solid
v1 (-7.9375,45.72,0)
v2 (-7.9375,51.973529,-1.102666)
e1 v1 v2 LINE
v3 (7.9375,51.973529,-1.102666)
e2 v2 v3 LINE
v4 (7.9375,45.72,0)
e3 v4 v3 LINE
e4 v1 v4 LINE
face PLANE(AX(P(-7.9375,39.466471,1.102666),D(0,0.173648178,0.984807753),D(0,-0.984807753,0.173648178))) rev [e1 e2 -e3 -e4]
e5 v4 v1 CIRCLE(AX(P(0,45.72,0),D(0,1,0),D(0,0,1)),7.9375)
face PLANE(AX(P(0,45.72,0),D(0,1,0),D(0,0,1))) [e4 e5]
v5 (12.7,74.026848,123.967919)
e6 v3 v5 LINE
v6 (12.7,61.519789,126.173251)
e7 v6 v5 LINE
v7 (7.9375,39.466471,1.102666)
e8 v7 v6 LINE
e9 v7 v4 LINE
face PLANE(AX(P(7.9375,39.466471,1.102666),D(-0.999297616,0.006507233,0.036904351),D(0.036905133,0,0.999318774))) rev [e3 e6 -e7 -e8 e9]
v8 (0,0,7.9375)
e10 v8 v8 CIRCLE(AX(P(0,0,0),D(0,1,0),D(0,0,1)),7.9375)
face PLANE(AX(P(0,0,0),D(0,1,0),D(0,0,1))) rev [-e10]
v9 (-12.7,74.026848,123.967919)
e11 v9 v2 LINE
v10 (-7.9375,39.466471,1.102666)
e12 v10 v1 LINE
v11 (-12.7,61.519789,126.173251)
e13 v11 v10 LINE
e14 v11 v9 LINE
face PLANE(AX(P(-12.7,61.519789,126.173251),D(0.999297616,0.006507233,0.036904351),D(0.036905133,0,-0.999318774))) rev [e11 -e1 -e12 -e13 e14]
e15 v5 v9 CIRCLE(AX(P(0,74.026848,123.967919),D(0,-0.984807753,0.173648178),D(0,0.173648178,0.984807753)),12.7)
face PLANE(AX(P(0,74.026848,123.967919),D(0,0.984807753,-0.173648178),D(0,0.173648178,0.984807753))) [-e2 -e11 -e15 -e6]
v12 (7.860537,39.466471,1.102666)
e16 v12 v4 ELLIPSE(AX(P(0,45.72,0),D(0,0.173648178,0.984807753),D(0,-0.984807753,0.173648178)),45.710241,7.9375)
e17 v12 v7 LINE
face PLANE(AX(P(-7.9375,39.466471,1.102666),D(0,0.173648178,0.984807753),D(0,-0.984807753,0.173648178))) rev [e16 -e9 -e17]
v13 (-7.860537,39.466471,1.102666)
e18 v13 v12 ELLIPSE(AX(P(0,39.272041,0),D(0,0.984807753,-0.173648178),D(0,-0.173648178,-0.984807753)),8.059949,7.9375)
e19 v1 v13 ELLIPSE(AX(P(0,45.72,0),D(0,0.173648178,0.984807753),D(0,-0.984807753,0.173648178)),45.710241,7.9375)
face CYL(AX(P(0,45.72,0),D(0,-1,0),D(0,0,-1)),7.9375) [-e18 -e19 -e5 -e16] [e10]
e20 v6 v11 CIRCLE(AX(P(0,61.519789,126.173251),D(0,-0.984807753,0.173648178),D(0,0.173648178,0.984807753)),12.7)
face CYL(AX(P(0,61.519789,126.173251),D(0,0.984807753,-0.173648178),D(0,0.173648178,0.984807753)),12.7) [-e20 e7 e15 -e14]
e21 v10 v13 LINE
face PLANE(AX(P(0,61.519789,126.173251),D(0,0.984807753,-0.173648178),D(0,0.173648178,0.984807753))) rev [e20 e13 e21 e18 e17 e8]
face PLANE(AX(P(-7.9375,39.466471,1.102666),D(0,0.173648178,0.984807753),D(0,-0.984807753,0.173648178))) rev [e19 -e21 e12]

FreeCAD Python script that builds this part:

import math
import FreeCAD as App
import Part
import Sketcher

V = App.Vector
Q = App.Units.Quantity

doc = App.newDocument("Part")
params = doc.addObject("Spreadsheet::Sheet", "Params")
for row, (alias, value) in enumerate([
    ("sketch1_diameter", "0.625 in"),
    ("pad1_length", "1.8 in"),
    ("sketch2_radius", "0.5 in"),
    ("sketch2_width", "0.625 in"),
    ("pad2_length", "0.5 in"),
], start=1):
    params.set(f"A{row}", alias)
    params.set(f"B{row}", "=" + value)
    params.setAlias(f"B{row}", alias)

body = doc.addObject("PartDesign::Body", "Body")

# Sketch on XZ plane
sketch1 = doc.addObject("Sketcher::SketchObject", "Sketch")
body.addObject(sketch1)
sketch1.AttachmentSupport = (doc.XZ_Plane, [""])
sketch1.MapMode = "FlatFace"
sketch1.addGeometry(Part.Circle(V(0, 0, 0), V(0, 0, 1), 8), False)
sketch1.addConstraint([
    Sketcher.Constraint("Coincident", 0, 3, -1, 1),
    Sketcher.Constraint("Diameter", 0, Q("0.625 in")),
])
sketch1.setExpression("Constraints[1]", "Params.sketch1_diameter")
pad1 = doc.addObject("PartDesign::Pad", "Pad")
body.addObject(pad1)
pad1.Profile = sketch1
pad1.setExpression("Length", "Params.pad1_length")
pad1.Reversed = True

# Sketch on an angled plane
sketch2 = doc.addObject("Sketcher::SketchObject", "Sketch001")
body.addObject(sketch2)
sketch2.Placement = App.Placement(V(0, 44.341373, -7.81858), App.Rotation(V(1, 0, 0), V(0, 0.173648178, 0.984807753), V(0, -0.984807753, 0.173648178), "ZXY"))
sketch2.addGeometry([
    Part.LineSegment(V(-8, 8, 0), V(8, 8, 0)),
    Part.LineSegment(V(8, 8, 0), V(13, 135, 0)),
    Part.ArcOfCircle(Part.Circle(V(0, 135, 0), V(0, 0, 1), 13), math.radians(0), math.radians(180)),
    Part.LineSegment(V(-13, 135, 0), V(-8, 8, 0)),
], False)
sketch2.addConstraint([
    Sketcher.Constraint("Coincident", 0, 2, 1, 1),
    Sketcher.Constraint("Coincident", 1, 2, 2, 1),
    Sketcher.Constraint("Coincident", 2, 2, 3, 1),
    Sketcher.Constraint("Coincident", 3, 2, 0, 1),
    Sketcher.Constraint("Horizontal", 0),
    Sketcher.Constraint("Symmetric", 1, 2, 2, 2, -2),
    Sketcher.Constraint("Horizontal", 2, 3, 1, 2),
    Sketcher.Constraint("Equal", 1, 3),
    Sketcher.Constraint("Radius", 2, Q("0.5 in")),
    Sketcher.Constraint("DistanceY", 0, 2, 2, 3, Q("5 in")),
    Sketcher.Constraint("DistanceX", 0, 1, 0, 2, Q("0.625 in")),
    Sketcher.Constraint("DistanceY", -1, 1, 2, 3, 134.939195),
])
sketch2.setExpression("Constraints[8]", "Params.sketch2_radius")
sketch2.setExpression("Constraints[10]", "Params.sketch2_width")
pad2 = doc.addObject("PartDesign::Pad", "Pad001")
body.addObject(pad2)
pad2.Profile = sketch2
pad2.setExpression("Length", "Params.pad2_length")
pad2.Midplane = True

doc.recompute()
